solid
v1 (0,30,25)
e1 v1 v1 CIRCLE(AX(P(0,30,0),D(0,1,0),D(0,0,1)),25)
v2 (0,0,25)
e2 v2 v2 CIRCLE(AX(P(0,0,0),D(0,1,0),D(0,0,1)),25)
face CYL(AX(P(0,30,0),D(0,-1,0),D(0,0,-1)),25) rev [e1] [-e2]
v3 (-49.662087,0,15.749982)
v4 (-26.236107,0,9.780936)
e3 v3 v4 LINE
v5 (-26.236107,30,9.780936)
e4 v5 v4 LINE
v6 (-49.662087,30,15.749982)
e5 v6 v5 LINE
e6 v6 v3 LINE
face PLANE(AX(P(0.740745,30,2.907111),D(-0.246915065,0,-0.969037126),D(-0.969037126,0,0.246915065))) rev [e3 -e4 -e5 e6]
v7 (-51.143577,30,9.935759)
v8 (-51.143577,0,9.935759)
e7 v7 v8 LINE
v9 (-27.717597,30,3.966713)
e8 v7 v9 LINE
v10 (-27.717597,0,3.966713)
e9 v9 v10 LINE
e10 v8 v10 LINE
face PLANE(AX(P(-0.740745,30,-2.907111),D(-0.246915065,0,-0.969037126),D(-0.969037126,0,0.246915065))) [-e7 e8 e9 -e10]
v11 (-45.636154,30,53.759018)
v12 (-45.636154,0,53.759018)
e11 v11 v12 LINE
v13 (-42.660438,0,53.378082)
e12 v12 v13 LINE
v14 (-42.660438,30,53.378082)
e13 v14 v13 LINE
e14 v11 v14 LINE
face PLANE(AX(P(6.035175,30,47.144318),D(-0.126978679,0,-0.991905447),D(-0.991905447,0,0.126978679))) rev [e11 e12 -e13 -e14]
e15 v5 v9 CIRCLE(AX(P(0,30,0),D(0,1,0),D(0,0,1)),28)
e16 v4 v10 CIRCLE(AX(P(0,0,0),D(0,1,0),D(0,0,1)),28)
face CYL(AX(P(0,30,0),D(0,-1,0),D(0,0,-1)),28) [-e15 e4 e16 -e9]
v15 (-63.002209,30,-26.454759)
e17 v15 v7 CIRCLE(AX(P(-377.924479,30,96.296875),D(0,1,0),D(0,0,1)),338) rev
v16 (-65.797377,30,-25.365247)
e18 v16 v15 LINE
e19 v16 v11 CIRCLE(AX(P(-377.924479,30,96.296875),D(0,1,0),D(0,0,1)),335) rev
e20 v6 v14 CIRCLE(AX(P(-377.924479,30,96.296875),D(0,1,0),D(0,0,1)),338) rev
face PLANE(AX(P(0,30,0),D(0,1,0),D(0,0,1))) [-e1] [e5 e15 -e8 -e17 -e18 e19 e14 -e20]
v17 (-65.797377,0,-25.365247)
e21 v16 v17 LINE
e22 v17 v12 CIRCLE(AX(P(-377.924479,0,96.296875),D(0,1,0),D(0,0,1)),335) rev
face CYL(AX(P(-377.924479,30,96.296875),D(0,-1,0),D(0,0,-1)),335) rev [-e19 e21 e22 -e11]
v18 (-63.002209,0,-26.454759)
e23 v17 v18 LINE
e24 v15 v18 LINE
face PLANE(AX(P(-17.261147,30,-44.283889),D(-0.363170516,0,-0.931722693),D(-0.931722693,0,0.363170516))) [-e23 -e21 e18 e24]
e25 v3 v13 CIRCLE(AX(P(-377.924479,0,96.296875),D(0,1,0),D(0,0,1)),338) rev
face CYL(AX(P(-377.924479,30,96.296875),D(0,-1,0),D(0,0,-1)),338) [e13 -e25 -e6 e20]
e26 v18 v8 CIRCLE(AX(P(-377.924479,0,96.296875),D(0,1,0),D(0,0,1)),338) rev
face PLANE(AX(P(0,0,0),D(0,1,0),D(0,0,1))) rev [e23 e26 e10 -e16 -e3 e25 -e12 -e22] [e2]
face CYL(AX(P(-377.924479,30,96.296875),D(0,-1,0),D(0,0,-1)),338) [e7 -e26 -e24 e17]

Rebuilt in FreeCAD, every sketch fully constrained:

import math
import FreeCAD as App
import Part
import Sketcher
from FreeCAD import Vector
Q = App.Units.Quantity

doc = App.newDocument("Part")
body = doc.addObject("PartDesign::Body", "Body")

# Sketch on XZ plane
sketch1 = body.newObject("Sketcher::SketchObject", "Sketch")
sketch1.AttachmentSupport = (doc.getObject("XZ_Plane"), [""])
sketch1.MapMode = "FlatFace"
sketch1.addGeometry(Part.LineSegment(Vector(-63, -26.5, 0), Vector(-65.8, -25.4, 0)), False)
sketch1.addGeometry(Part.ArcOfCircle(Part.Circle(Vector(-377.9, 96.3, 0), Vector(0, 0, 1), 335), math.radians(-21.3), math.radians(-7.3)), False)
sketch1.addGeometry(Part.LineSegment(Vector(-45.6, 53.8, 0), Vector(-42.7, 53.4, 0)), False)
sketch1.addGeometry(Part.ArcOfCircle(Part.Circle(Vector(-377.9, 96.3, 0), Vector(0, 0, 1), 338), math.radians(-13.79), math.radians(-7.3)), False)
sketch1.addGeometry(Part.LineSegment(Vector(-49.7, 15.7, 0), Vector(-26.2, 9.8, 0)), False)
sketch1.addGeometry(Part.ArcOfCircle(Part.Circle(Vector(0, 0, 0), Vector(0, 0, 1), 28), math.radians(172), math.radians(520)), False)
sketch1.addGeometry(Part.LineSegment(Vector(-27.7, 4, 0), Vector(-51.1, 9.9, 0)), False)
sketch1.addGeometry(Part.ArcOfCircle(Part.Circle(Vector(-377.9, 96.3, 0), Vector(0, 0, 1), 338), math.radians(-21.3), math.radians(-14.8)), False)
sketch1.addGeometry(Part.Circle(Vector(0, 0, 0), Vector(0, 0, 1), 25), False)
sketch1.addConstraint(Sketcher.Constraint("Coincident", 0, 2, 1, 1))
sketch1.addConstraint(Sketcher.Constraint("Coincident", 1, 2, 2, 1))
sketch1.addConstraint(Sketcher.Constraint("Coincident", 2, 2, 3, 2))
sketch1.addConstraint(Sketcher.Constraint("Coincident", 3, 1, 4, 1))
sketch1.addConstraint(Sketcher.Constraint("Coincident", 4, 2, 5, 2))
sketch1.addConstraint(Sketcher.Constraint("Coincident", 5, 1, 6, 1))
sketch1.addConstraint(Sketcher.Constraint("Coincident", 6, 2, 7, 2))
sketch1.addConstraint(Sketcher.Constraint("Coincident", 7, 1, 0, 1))
sketch1.addConstraint(Sketcher.Constraint("Coincident", 5, 3, -1, 1))
sketch1.addConstraint(Sketcher.Constraint("Coincident", 8, 3, -1, 1))
sketch1.addConstraint(Sketcher.Constraint("Coincident", 3, 3, 1, 3))
sketch1.addConstraint(Sketcher.Constraint("Coincident", 7, 3, 1, 3))
sketch1.addConstraint(Sketcher.Constraint("Equal", 3, 7))
sketch1.addConstraint(Sketcher.Constraint("Parallel", 4, 6))
sketch1.addConstraint(Sketcher.Constraint("Equal", 4, 6))
sketch1.addConstraint(Sketcher.Constraint("Diameter", 8, Q("50 mm")))
sketch1.addConstraint(Sketcher.Constraint("Radius", 1, Q("335 mm")))
sketch1.addConstraint(Sketcher.Constraint("Radius", 3, Q("338 mm")))
sketch1.addConstraint(Sketcher.Constraint("Radius", 5, Q("28 mm")))
sketch1.addConstraint(Sketcher.Constraint("DistanceX", 7, 3, 0, 2, Q("312.127102 mm")))
sketch1.addConstraint(Sketcher.Constraint("DistanceY", 3, 1, 2, 2, Q("37.6281 mm")))
sketch1.addConstraint(Sketcher.Constraint("DistanceX", 0, 2, 6, 2, Q("14.653799 mm")))
sketch1.addConstraint(Sketcher.Constraint("DistanceX", 1, 3, -1, 1, Q("377.924479 mm")))
sketch1.addConstraint(Sketcher.Constraint("DistanceX", 2, 2, -1, 1, Q("42.660438 mm")))
sketch1.addConstraint(Sketcher.Constraint("DistanceY", -1, 1, 2, 2, Q("53.378082 mm")))
sketch1.addConstraint(Sketcher.Constraint("DistanceX", 7, 1, -1, 1, Q("63.002209 mm")))
sketch1.addConstraint(Sketcher.Constraint("DistanceY", 4, 2, 1, 2, Q("43.978082 mm")))
pad1 = body.newObject("PartDesign::Pad", "Pad")
pad1.Profile = sketch1
pad1.Length = 30
pad1.Reversed = True

doc.recompute()
